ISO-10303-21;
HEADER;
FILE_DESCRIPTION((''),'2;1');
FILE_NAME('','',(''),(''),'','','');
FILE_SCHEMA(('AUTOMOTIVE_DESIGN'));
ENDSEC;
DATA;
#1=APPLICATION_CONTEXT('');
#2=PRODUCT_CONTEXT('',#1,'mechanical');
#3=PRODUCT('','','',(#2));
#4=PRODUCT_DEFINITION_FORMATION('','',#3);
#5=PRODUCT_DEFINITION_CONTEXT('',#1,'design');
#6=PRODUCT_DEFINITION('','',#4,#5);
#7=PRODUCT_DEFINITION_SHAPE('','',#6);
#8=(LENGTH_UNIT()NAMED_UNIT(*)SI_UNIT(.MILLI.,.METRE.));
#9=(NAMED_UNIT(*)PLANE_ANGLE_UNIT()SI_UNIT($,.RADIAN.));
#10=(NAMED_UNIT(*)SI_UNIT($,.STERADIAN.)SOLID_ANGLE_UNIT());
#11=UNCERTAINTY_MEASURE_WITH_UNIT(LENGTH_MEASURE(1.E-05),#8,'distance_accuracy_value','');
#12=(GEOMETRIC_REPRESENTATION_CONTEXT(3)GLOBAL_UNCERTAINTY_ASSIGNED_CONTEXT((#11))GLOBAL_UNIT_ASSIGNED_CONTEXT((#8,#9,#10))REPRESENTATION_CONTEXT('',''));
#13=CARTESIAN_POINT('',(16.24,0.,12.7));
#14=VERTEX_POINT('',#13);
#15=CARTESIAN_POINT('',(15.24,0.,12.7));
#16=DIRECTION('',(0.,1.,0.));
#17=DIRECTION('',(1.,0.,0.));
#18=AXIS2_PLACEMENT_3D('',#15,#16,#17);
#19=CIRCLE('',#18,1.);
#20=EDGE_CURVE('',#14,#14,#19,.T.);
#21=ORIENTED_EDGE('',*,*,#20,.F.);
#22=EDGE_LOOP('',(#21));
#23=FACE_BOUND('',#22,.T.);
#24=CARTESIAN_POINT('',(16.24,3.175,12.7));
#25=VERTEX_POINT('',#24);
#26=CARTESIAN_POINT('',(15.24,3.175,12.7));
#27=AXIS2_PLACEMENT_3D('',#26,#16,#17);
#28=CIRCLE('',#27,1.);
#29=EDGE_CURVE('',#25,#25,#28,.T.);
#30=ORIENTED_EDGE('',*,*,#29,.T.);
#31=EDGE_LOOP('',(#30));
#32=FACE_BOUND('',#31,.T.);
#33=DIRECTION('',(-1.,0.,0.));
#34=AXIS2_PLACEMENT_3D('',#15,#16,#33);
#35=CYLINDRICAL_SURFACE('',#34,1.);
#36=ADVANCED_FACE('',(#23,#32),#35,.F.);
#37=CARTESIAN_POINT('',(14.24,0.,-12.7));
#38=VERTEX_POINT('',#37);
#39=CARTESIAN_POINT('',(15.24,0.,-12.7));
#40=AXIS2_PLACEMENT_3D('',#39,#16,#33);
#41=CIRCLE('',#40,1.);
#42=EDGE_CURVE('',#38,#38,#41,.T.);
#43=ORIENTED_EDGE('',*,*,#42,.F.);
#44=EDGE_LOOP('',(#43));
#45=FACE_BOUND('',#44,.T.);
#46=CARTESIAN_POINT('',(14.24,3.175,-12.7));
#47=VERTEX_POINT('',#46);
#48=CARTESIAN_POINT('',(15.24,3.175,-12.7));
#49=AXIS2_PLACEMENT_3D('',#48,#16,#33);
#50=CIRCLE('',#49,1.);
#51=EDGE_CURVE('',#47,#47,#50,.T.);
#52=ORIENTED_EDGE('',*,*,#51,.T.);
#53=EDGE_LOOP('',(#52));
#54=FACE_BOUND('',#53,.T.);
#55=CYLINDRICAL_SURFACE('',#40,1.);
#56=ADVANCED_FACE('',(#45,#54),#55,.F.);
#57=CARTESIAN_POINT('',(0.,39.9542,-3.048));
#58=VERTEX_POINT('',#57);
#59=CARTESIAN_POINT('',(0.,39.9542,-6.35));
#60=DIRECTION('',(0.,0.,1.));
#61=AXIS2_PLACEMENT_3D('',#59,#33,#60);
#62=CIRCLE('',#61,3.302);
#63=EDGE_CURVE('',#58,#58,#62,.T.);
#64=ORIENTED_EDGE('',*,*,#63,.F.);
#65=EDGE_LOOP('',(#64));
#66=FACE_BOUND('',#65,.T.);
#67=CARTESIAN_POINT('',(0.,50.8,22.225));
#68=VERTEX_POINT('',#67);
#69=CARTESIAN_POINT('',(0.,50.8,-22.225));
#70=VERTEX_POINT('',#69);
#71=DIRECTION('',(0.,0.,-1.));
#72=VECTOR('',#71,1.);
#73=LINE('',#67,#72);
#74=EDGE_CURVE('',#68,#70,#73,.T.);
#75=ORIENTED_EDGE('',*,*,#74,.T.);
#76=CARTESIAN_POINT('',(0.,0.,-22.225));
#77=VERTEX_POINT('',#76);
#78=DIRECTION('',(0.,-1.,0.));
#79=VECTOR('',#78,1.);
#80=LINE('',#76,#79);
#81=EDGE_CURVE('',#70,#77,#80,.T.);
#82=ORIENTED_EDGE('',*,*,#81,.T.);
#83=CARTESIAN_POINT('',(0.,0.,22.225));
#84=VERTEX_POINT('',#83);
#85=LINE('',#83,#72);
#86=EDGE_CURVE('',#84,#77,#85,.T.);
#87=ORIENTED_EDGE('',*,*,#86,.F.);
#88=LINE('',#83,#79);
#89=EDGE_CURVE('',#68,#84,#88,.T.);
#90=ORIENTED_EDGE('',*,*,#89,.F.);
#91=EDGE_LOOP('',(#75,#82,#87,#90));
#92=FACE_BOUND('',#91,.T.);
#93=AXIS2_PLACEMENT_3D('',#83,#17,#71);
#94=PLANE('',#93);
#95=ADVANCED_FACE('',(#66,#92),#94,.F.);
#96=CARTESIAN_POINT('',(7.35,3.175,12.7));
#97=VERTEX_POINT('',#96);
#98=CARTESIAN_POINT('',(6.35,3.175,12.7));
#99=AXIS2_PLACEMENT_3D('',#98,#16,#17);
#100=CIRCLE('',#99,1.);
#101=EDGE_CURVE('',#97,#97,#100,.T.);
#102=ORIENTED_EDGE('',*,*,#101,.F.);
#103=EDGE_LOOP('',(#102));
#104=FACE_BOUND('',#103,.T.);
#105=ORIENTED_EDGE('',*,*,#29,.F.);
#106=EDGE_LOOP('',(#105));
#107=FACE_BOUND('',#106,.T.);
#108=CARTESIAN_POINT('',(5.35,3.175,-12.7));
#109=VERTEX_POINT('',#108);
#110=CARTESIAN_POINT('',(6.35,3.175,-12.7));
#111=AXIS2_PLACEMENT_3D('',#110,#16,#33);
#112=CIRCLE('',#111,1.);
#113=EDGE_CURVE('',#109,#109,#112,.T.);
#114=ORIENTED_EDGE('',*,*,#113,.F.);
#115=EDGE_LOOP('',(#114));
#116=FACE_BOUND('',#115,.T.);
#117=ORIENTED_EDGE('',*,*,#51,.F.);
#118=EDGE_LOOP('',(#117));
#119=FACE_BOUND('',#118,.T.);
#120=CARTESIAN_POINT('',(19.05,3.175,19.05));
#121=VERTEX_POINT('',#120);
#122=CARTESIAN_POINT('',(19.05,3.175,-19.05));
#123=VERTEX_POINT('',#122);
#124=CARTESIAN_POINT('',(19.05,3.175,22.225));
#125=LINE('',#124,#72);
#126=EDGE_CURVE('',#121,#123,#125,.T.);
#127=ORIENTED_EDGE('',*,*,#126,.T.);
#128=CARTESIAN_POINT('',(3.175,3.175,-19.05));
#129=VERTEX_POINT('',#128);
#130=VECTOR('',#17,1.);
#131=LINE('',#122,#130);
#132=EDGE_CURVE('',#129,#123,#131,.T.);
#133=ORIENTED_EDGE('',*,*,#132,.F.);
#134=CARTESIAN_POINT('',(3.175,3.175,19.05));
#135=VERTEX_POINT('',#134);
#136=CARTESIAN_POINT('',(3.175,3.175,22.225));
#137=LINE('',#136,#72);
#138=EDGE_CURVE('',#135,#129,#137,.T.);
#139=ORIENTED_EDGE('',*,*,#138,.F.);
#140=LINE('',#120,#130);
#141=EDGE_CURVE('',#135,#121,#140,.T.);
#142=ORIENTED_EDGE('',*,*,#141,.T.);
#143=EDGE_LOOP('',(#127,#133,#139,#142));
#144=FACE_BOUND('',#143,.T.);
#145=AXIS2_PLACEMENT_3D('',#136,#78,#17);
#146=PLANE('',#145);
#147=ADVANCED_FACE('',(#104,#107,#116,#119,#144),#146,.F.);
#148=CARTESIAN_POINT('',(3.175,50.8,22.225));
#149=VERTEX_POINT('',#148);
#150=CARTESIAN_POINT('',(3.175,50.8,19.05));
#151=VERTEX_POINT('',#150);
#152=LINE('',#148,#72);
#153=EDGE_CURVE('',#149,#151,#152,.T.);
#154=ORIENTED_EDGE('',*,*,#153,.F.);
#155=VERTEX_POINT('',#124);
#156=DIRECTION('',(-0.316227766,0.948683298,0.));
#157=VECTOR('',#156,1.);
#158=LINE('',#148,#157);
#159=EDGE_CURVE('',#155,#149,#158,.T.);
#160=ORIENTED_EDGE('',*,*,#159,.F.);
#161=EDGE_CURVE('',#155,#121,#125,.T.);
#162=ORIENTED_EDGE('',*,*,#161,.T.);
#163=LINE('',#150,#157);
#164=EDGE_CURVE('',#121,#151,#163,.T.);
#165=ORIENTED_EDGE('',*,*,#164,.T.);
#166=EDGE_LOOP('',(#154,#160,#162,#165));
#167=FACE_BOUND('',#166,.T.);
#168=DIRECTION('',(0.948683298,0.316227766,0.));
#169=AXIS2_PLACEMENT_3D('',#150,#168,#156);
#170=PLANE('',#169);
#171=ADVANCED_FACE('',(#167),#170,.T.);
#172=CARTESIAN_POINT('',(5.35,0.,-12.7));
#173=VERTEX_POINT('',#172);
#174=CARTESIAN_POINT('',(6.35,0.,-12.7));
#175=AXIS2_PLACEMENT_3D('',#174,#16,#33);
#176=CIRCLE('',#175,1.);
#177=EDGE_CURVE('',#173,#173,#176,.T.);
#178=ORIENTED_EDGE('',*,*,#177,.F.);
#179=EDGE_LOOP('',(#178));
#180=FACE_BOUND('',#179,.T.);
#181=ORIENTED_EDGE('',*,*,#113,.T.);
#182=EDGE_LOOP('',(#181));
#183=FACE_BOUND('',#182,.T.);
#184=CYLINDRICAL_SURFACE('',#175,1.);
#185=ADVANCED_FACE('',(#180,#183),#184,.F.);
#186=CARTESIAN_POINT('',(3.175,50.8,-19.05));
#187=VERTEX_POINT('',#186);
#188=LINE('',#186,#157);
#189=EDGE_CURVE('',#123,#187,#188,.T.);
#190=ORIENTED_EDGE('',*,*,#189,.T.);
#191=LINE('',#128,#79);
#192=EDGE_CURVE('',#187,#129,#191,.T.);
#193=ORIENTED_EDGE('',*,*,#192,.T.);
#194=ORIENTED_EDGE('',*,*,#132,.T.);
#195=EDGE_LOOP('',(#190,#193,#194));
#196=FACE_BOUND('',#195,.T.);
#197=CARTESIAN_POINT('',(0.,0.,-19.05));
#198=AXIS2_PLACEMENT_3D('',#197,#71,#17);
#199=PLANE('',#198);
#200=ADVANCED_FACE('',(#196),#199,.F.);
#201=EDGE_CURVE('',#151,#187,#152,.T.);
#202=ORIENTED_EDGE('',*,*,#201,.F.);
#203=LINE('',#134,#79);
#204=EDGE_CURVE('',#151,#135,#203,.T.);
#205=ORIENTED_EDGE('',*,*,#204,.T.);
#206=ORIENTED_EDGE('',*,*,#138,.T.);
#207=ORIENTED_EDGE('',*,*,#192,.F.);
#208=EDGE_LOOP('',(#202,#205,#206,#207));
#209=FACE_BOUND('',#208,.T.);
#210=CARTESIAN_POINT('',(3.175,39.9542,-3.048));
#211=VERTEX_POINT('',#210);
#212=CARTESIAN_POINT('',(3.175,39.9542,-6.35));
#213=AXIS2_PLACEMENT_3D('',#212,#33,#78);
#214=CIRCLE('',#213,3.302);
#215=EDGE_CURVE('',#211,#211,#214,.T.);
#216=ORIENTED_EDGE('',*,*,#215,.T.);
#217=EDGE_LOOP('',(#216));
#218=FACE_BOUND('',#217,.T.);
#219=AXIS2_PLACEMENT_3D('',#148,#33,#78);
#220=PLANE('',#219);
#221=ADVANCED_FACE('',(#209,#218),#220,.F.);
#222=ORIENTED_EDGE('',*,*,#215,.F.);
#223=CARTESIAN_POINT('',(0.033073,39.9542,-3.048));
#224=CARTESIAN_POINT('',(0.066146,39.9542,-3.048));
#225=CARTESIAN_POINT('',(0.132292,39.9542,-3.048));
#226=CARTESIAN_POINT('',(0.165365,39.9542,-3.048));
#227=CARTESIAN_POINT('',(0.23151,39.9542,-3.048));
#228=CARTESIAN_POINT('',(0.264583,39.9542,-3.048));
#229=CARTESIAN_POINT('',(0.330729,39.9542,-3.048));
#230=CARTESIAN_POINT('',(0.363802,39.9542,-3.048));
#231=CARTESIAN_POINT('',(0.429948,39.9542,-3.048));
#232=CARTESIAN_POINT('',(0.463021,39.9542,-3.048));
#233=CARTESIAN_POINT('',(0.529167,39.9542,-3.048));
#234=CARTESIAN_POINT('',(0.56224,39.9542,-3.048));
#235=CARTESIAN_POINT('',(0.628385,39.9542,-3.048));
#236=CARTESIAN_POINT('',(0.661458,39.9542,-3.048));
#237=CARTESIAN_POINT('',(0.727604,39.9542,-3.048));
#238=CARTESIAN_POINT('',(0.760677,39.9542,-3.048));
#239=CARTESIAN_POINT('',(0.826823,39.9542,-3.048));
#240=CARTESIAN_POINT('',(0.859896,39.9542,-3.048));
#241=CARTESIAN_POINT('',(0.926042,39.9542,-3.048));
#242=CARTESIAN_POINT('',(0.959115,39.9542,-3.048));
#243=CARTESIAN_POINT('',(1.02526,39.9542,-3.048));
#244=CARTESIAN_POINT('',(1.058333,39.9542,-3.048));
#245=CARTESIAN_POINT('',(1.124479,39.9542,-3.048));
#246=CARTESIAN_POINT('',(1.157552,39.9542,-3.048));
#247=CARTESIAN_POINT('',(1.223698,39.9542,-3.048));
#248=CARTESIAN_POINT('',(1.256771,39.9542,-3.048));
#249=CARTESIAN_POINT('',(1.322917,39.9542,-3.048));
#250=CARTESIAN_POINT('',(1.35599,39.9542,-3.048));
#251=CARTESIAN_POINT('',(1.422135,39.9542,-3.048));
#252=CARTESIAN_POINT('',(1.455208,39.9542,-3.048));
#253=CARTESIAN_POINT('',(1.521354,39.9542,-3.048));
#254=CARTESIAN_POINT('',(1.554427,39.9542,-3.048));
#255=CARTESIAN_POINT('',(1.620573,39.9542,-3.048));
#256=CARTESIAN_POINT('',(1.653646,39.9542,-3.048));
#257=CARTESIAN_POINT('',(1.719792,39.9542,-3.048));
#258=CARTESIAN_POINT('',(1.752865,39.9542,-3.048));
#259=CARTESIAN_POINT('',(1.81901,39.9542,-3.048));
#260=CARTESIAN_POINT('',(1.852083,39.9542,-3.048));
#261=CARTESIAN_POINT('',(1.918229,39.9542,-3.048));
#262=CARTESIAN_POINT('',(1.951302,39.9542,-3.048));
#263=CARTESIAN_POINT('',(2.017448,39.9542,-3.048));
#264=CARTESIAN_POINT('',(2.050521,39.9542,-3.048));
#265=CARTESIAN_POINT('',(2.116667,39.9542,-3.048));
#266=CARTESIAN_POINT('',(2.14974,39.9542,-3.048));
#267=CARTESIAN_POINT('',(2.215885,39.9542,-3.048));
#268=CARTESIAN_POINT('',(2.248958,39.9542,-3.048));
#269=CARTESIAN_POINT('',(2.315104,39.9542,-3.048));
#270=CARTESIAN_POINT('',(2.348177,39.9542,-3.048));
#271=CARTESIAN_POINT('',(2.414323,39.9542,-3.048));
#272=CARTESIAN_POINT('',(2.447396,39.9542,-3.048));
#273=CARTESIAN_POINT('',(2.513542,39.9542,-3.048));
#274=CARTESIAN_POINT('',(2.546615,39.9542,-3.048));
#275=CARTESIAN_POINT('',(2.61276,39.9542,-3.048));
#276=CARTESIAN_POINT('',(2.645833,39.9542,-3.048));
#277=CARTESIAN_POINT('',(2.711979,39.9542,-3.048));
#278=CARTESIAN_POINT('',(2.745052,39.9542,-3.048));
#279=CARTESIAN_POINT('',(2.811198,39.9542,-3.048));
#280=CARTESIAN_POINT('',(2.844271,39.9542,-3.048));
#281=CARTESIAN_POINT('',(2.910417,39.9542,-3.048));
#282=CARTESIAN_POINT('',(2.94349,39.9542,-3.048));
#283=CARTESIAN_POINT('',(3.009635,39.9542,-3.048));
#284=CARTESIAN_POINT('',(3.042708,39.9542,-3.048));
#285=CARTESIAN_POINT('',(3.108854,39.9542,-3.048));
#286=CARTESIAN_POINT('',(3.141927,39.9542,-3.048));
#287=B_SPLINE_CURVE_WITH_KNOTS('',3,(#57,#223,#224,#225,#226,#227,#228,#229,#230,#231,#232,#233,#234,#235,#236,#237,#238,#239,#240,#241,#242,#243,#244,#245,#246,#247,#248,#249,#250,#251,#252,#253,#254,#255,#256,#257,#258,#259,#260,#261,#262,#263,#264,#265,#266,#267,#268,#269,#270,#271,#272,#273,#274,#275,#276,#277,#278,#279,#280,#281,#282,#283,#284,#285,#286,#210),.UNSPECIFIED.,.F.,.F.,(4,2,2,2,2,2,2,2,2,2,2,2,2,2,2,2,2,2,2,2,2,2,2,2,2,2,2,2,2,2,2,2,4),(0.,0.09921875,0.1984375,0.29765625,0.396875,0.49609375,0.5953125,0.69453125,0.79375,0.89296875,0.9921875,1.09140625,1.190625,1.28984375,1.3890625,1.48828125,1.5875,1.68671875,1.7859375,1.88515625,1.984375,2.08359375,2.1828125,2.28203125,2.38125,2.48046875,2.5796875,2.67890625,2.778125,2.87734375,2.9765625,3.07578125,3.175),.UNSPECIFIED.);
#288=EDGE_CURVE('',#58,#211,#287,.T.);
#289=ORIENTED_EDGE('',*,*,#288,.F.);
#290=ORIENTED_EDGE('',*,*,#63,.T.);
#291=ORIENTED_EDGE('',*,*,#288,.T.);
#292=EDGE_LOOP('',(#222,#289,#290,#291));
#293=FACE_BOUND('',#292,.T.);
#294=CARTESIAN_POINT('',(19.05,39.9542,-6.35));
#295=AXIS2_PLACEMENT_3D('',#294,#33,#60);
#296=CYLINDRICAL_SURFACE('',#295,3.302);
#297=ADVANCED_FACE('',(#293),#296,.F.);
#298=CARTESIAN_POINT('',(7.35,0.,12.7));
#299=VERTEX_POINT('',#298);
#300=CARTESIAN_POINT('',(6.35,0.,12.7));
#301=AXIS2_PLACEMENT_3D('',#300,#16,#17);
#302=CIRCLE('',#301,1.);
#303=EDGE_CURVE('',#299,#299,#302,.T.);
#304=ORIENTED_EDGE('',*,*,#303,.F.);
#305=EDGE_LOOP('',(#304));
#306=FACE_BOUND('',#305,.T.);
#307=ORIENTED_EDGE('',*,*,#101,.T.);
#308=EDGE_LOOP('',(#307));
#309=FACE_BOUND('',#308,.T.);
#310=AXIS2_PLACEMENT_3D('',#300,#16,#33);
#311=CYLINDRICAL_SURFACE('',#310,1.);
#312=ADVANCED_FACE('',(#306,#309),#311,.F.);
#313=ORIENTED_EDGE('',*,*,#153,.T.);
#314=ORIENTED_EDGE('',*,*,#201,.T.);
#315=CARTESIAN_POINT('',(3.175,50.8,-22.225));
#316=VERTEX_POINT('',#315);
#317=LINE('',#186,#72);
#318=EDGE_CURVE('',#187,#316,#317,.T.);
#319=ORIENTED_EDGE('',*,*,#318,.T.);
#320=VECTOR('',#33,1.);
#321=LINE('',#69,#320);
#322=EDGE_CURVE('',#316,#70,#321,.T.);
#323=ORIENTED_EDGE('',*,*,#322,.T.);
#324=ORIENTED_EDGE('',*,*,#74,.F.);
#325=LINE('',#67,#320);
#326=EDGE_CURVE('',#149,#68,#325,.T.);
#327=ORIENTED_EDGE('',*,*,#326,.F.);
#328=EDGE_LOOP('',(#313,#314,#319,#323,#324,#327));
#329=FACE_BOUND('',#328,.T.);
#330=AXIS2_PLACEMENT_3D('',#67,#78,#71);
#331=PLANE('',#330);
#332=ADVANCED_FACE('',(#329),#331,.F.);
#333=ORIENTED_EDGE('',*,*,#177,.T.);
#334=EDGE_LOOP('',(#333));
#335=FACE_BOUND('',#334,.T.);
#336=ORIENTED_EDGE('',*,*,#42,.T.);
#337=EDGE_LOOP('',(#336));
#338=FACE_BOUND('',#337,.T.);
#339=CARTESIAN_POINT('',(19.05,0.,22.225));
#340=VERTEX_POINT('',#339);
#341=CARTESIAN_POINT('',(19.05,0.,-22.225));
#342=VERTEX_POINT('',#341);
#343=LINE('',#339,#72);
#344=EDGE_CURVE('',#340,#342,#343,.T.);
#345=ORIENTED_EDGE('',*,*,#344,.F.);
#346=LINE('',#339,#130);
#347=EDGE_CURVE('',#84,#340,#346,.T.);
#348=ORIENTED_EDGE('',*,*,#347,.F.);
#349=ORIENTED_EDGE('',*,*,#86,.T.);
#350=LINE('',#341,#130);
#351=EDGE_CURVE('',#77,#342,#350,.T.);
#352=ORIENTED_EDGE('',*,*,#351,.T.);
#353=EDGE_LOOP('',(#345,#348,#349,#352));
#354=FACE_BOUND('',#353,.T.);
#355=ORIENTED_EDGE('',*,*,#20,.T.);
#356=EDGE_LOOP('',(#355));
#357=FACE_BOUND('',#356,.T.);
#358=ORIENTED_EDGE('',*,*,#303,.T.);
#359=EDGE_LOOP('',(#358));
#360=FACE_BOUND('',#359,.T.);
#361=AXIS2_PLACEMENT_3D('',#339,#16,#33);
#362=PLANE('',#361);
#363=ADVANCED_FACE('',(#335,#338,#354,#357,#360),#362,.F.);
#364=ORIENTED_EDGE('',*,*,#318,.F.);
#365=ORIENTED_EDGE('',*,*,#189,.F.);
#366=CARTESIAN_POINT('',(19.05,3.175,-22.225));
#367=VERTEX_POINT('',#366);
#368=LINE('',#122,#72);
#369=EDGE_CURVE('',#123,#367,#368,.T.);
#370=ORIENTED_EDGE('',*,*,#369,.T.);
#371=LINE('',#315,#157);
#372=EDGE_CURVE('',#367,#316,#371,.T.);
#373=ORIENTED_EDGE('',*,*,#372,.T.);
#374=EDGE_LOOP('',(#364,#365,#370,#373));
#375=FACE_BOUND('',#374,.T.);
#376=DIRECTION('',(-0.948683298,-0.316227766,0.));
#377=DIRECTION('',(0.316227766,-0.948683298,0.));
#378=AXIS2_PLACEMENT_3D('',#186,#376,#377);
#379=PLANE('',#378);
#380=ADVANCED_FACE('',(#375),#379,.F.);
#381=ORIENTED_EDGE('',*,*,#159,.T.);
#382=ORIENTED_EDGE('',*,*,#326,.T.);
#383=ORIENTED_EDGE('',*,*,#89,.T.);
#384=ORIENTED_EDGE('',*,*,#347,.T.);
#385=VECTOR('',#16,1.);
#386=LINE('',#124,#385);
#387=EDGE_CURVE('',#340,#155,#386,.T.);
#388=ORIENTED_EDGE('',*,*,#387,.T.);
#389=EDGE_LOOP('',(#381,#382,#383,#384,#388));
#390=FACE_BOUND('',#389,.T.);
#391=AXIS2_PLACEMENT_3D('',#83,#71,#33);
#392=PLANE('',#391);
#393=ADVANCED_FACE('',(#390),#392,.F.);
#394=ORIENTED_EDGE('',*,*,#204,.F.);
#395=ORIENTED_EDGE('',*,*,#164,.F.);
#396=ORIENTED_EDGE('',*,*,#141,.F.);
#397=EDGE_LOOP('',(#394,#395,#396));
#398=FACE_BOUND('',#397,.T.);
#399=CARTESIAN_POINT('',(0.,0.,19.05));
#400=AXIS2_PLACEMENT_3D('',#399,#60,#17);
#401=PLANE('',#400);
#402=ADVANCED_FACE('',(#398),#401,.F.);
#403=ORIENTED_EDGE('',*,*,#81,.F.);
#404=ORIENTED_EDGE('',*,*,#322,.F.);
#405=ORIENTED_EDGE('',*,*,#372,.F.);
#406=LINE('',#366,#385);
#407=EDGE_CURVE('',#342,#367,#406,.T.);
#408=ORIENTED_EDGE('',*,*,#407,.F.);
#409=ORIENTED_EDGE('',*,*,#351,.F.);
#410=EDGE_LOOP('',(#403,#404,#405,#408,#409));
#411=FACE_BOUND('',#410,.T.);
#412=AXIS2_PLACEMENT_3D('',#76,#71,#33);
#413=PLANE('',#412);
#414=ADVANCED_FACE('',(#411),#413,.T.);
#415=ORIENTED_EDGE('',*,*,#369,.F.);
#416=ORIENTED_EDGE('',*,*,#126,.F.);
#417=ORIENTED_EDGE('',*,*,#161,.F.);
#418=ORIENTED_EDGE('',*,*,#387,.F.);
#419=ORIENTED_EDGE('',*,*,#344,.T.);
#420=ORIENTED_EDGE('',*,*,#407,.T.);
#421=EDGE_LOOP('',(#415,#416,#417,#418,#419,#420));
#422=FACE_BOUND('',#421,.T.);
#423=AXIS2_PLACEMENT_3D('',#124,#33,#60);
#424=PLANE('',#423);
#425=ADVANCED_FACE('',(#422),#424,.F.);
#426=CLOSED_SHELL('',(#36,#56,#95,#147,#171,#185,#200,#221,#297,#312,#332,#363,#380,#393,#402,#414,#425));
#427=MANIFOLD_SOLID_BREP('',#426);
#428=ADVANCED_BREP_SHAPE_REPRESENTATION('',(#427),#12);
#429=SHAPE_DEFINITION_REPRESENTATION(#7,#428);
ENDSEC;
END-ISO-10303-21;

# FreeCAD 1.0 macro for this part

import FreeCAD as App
import Part
import Sketcher

V = App.Vector
Q = App.Units.Quantity


def add_polygon(sketch, points):
    """Adds a closed chain of lines whose ends are joined by coincident constraints."""
    first, n = sketch.GeometryCount, len(points)
    for a, b in zip(points, points[1:] + points[:1]):
        sketch.addGeometry(Part.LineSegment(App.Vector(*a, 0), App.Vector(*b, 0)), False)
    for i in range(n):
        sketch.addConstraint(Sketcher.Constraint("Coincident", first + i, 2, first + (i + 1) % n, 1))

doc = App.newDocument("Part")
body = doc.addObject("PartDesign::Body", "Body")

# Sketch on XY plane
sketch1 = doc.addObject("Sketcher::SketchObject", "Sketch")
body.addObject(sketch1)
sketch1.AttachmentSupport = (doc.XY_Plane, [""])
sketch1.MapMode = "FlatFace"
add_polygon(sketch1, [(0, 50.8), (0, 0), (19.05, 0), (19.05, 3.175), (3.175, 3.175), (3.175, 50.8)])  # lines 0-5
sketch1.addConstraint(Sketcher.Constraint("Vertical", 0))
sketch1.addConstraint(Sketcher.Constraint("Horizontal", 1))
sketch1.addConstraint(Sketcher.Constraint("Vertical", 2))
sketch1.addConstraint(Sketcher.Constraint("Horizontal", 3))
sketch1.addConstraint(Sketcher.Constraint("Vertical", 4))
sketch1.addConstraint(Sketcher.Constraint("Horizontal", 5))
sketch1.addConstraint(Sketcher.Constraint("Coincident", 0, 2, -1, 1))
sketch1.addConstraint(Sketcher.Constraint("Equal", 5, 2))
sketch1.addConstraint(Sketcher.Constraint("DistanceY", 0, 2, 0, 1, Q("2 in")))
sketch1.addConstraint(Sketcher.Constraint("DistanceX", 1, 1, 1, 2, Q("0.75 in")))
sketch1.addConstraint(Sketcher.Constraint("DistanceX", 3, 2, 3, 1, Q("0.625 in")))
pad1 = doc.addObject("PartDesign::Pad", "Pad")
body.addObject(pad1)
pad1.Profile = sketch1
pad1.Length = Q("1.75 in")
pad1.Midplane = True

# Sketch on YZ plane
sketch2 = doc.addObject("Sketcher::SketchObject", "Sketch001")
body.addObject(sketch2)
sketch2.AttachmentSupport = (doc.YZ_Plane, [""])
sketch2.MapMode = "FlatFace"
sketch2.addGeometry(Part.Circle(V(39.9542, -6.35, 0), V(0, 0, 1), 3.302), False)
sketch2.addConstraint(Sketcher.Constraint("Diameter", 0, Q("0.26 in")))
sketch2.addConstraint(Sketcher.Constraint("DistanceY", 0, 3, -1, 1, Q("0.25 in")))
sketch2.addConstraint(Sketcher.Constraint("DistanceX", -1, 1, 0, 3, Q("1.573 in")))
pocket1 = doc.addObject("PartDesign::Pocket", "Pocket")
body.addObject(pocket1)
pocket1.Profile = sketch2
pocket1.Type = "ThroughAll"
pocket1.Reversed = True

# Sketch on XY plane
sketch3 = doc.addObject("Sketcher::SketchObject", "Sketch002")
body.addObject(sketch3)
sketch3.AttachmentSupport = (doc.XY_Plane, [""])
sketch3.MapMode = "FlatFace"
sketch3.AttachmentOffset = App.Placement(V(0, 0, 0.875 * 25.4), App.Rotation())
add_polygon(sketch3, [(19.05, 3.175), (3.175, 50.8), (3.175, 3.175)])  # lines 0-2
sketch3.addConstraint(Sketcher.Constraint("Vertical", 1))
sketch3.addConstraint(Sketcher.Constraint("Horizontal", 2))
sketch3.addConstraint(Sketcher.Constraint("DistanceY", -1, 1, 0, 2, Q("2 in")))
sketch3.addConstraint(Sketcher.Constraint("DistanceX", 2, 1, 2, 2, Q("0.625 in")))
sketch3.addConstraint(Sketcher.Constraint("DistanceY", 1, 2, 1, 1, Q("1.875 in")))
sketch3.addConstraint(Sketcher.Constraint("DistanceX", -1, 1, 2, 2, Q("0.75 in")))
pad2 = doc.addObject("PartDesign::Pad", "Pad001")
body.addObject(pad2)
pad2.Profile = sketch3
pad2.Length = Q("0.125 in")
pad2.Reversed = True
doc.recompute()

mirrored = doc.addObject("PartDesign::Mirrored", "Mirrored")
body.addObject(mirrored)
mirrored.Originals = [pad2]
mirrored.MirrorPlane = (doc.XY_Plane, [""])
body.Tip = mirrored

# Sketch on XZ plane
sketch4 = doc.addObject("Sketcher::SketchObject", "Sketch003")
body.addObject(sketch4)
sketch4.AttachmentSupport = (doc.XZ_Plane, [""])
sketch4.MapMode = "FlatFace"
sketch4.AttachmentOffset = App.Placement(V(0, 0, -0.125 * 25.4), App.Rotation())
sketch4.addGeometry(Part.Circle(V(6.35, -12.7, 0), V(0, 0, 1), 1), False)
sketch4.addGeometry(Part.Circle(V(15.24, -12.7, 0), V(0, 0, 1), 1), False)
sketch4.addGeometry(Part.Circle(V(15.24, 12.7, 0), V(0, 0, 1), 1), False)
sketch4.addGeometry(Part.Circle(V(6.35, 12.7, 0), V(0, 0, 1), 1), False)
sketch4.addConstraint(Sketcher.Constraint("Equal", 0, 1))
sketch4.addConstraint(Sketcher.Constraint("Equal", 1, 2))
sketch4.addConstraint(Sketcher.Constraint("Equal", 2, 3))
sketch4.addConstraint(Sketcher.Constraint("Symmetric", 1, 3, 2, 3, -1))
sketch4.addConstraint(Sketcher.Constraint("Symmetric", 0, 3, 3, 3, -1))
sketch4.addConstraint(Sketcher.Constraint("Horizontal", 0, 3, 1, 3))
sketch4.addConstraint(Sketcher.Constraint("DistanceY", 1, 3, 2, 3, Q("1 in")))
sketch4.addConstraint(Sketcher.Constraint("DistanceX", -1, 1, 1, 3, Q("0.6 in")))
sketch4.addConstraint(Sketcher.Constraint("Diameter", 0, Q("2 mm")))
sketch4.addConstraint(Sketcher.Constraint("DistanceX", -1, 1, 0, 3, Q("0.25 in")))
pocket2 = doc.addObject("PartDesign::Pocket", "Pocket001")
body.addObject(pocket2)
pocket2.Profile = sketch4
pocket2.Type = "ThroughAll"
pocket2.Reversed = True

doc.recompute()
